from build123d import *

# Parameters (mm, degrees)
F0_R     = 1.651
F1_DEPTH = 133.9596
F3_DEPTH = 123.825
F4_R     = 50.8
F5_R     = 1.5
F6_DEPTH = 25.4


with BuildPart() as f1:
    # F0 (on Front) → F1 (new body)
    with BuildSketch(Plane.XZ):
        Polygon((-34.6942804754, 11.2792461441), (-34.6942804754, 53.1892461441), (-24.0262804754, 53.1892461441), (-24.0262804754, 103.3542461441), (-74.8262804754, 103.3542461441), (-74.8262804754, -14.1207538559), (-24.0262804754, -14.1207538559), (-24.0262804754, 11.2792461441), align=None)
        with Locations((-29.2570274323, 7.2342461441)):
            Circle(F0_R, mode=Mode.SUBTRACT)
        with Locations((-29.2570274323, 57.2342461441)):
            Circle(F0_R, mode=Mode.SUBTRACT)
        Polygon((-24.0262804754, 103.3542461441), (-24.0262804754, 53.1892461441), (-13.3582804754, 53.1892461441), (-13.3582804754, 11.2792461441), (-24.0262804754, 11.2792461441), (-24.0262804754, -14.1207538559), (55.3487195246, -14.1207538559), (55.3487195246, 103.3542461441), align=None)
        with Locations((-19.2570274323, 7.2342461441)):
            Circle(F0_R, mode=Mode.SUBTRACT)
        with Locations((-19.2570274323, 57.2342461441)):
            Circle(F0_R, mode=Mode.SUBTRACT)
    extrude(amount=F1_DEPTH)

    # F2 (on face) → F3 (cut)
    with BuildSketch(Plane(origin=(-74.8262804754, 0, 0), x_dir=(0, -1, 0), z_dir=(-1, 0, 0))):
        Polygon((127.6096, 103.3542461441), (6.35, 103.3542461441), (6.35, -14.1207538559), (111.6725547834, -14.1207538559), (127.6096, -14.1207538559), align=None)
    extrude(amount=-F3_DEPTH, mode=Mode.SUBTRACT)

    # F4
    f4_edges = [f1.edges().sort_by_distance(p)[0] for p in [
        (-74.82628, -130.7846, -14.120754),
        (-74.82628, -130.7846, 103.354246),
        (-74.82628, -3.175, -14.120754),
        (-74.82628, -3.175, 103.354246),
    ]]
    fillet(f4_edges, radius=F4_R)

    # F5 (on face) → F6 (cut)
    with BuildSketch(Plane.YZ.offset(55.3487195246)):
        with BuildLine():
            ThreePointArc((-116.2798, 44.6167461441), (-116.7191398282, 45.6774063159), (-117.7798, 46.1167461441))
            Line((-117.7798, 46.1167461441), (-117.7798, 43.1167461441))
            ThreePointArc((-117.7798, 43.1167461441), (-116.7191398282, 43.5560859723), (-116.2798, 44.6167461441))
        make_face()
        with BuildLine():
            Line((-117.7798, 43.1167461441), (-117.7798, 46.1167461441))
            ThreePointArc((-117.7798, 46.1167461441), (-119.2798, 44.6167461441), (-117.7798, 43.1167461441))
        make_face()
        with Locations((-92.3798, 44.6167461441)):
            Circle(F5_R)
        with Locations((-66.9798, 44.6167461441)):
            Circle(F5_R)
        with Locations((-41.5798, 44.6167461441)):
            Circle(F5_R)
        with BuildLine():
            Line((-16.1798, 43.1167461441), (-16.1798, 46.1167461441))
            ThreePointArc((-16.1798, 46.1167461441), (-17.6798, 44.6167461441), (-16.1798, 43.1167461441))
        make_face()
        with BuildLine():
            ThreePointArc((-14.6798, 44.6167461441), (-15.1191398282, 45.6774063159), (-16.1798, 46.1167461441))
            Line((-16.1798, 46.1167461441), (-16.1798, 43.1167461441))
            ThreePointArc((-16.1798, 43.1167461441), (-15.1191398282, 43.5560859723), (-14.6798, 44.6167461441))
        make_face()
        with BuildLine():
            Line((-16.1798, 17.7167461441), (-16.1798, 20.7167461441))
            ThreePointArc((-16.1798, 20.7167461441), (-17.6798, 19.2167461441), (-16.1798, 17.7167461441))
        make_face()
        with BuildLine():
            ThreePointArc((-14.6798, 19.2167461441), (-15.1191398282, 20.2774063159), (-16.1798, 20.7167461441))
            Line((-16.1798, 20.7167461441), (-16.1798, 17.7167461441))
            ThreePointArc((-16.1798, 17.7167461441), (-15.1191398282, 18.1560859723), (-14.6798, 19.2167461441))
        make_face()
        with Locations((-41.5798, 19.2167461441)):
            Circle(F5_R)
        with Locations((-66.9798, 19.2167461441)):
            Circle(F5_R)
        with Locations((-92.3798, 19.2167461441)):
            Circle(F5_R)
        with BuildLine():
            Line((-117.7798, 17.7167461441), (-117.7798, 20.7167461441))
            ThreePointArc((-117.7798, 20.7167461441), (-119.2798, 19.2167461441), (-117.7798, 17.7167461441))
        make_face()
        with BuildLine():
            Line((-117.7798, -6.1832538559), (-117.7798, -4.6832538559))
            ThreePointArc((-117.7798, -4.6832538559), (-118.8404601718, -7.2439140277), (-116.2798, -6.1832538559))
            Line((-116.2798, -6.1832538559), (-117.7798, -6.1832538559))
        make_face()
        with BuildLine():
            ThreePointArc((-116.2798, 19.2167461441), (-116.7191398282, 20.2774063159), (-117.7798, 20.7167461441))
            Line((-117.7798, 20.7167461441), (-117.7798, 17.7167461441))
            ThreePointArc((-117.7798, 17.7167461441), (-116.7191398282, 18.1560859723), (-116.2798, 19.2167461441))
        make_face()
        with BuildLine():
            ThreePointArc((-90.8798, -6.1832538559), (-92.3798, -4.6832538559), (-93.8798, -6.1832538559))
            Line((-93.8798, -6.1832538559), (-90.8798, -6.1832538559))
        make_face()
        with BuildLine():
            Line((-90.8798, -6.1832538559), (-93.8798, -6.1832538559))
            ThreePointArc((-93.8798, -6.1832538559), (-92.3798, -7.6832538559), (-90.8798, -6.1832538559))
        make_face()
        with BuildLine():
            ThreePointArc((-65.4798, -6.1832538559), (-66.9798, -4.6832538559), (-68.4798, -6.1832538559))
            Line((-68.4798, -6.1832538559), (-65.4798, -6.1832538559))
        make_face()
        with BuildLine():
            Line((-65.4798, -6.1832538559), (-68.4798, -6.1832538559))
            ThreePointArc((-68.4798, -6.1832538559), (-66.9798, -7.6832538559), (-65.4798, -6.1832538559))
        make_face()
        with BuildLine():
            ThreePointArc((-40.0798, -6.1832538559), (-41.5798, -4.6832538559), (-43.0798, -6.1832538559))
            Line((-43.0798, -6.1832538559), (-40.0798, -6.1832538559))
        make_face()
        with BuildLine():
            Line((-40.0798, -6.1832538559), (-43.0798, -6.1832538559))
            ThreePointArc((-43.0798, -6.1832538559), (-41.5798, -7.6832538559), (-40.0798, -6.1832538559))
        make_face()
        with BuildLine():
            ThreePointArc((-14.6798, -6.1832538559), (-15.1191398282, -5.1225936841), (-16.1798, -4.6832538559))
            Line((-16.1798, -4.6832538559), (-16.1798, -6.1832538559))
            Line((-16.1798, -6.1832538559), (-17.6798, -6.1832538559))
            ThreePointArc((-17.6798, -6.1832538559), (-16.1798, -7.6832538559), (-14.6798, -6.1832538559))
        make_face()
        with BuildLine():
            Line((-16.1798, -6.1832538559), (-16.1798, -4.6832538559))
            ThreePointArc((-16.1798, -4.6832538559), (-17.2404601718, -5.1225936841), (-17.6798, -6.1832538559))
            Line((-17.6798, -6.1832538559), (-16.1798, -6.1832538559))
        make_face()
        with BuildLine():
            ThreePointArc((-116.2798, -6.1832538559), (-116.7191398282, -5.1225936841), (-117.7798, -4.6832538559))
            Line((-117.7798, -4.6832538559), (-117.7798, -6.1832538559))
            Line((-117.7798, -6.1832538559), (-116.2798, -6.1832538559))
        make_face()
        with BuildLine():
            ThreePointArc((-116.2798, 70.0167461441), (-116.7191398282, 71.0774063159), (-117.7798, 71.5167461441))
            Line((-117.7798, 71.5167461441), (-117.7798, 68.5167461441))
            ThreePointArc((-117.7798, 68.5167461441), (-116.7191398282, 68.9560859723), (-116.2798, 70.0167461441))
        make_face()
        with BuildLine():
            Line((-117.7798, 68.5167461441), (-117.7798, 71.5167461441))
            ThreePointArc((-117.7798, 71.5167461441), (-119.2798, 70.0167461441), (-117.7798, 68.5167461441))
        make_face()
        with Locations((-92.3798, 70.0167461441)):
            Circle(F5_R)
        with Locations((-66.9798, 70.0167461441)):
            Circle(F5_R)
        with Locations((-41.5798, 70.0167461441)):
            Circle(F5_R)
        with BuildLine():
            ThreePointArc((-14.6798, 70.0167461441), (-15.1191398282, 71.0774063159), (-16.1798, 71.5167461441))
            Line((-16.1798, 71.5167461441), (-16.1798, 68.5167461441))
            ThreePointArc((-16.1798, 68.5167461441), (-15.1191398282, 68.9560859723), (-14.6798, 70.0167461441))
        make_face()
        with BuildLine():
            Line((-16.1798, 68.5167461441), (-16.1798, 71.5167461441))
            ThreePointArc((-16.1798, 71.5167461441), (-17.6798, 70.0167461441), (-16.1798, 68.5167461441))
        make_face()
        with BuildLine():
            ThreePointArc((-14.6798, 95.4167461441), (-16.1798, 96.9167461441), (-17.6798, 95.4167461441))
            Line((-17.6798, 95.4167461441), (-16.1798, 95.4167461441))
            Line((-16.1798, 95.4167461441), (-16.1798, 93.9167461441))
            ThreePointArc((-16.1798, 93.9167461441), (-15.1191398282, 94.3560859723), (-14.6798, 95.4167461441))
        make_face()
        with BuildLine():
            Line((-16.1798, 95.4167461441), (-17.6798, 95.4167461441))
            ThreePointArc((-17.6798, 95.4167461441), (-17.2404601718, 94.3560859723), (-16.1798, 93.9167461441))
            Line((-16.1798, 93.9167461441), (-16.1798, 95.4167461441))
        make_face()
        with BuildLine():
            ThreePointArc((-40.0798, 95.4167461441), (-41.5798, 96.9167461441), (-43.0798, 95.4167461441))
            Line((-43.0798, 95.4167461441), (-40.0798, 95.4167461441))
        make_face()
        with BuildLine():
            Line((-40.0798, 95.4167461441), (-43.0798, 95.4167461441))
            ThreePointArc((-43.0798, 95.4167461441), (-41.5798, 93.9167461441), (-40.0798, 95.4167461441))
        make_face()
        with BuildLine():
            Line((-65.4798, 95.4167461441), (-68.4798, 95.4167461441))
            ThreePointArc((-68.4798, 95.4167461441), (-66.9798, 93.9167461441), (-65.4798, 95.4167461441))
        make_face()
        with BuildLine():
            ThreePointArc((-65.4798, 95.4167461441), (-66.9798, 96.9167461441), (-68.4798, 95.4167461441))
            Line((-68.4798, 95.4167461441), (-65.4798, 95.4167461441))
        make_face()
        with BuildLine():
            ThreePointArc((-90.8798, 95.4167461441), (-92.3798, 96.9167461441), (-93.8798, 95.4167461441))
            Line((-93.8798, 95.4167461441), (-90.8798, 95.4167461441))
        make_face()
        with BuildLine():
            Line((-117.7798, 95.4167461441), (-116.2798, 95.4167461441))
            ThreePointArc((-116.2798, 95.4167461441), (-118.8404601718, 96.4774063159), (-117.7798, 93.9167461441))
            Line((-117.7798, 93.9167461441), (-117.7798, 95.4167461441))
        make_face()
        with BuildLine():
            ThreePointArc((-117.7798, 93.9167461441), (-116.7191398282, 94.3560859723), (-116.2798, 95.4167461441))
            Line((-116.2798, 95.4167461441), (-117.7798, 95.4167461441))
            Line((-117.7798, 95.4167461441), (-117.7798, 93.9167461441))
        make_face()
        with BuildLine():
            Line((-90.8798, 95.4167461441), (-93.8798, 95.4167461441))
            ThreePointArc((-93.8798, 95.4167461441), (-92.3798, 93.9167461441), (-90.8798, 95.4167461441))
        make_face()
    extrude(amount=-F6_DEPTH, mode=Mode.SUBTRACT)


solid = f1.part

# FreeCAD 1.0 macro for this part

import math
import FreeCAD as App
import Part
import Sketcher
Q = App.Units.Quantity


def edges_at(feature, points):
    """Names of the edges that pass closest to the given points."""
    edges = feature.Shape.Edges
    near = lambda p: min(range(len(edges)), key=lambda i: edges[i].distToShape(Part.Vertex(*p))[0])
    return sorted({f"Edge{near(p) + 1}" for p in points})


def add_polygon(sketch, points):
    """Adds a closed chain of lines whose ends are joined by coincident constraints."""
    first, n = sketch.GeometryCount, len(points)
    for a, b in zip(points, points[1:] + points[:1]):
        sketch.addGeometry(Part.LineSegment(App.Vector(*a, 0), App.Vector(*b, 0)), False)
    for i in range(n):
        sketch.addConstraint(Sketcher.Constraint("Coincident", first + i, 2, first + (i + 1) % n, 1))

doc = App.newDocument("Part")
body = doc.addObject("PartDesign::Body", "Body")

# Sketch on XZ plane
sketch1 = body.newObject("Sketcher::SketchObject", "Sketch")
sketch1.AttachmentSupport = (doc.getObject("XZ_Plane"), [""])
sketch1.MapMode = "FlatFace"
add_polygon(sketch1, [(-74.8, -14.1), (55.3, -14.1), (55.3, 103.4), (-74.8, 103.4)])  # lines 0-3
sketch1.addGeometry(Part.Circle(App.Vector(-29.3, 7.2, 0), App.Vector(0, 0, 1), 1.7), False)  # 4
sketch1.addGeometry(Part.Circle(App.Vector(-19.3, 7.2, 0), App.Vector(0, 0, 1), 1.7), False)  # 5
sketch1.addGeometry(Part.Circle(App.Vector(-29.3, 57.2, 0), App.Vector(0, 0, 1), 1.7), False)  # 6
add_polygon(sketch1, [(-34.7, 11.3), (-34.7, 53.2), (-13.4, 53.2), (-13.4, 11.3)])  # lines 7-10
sketch1.addGeometry(Part.Circle(App.Vector(-19.3, 57.2, 0), App.Vector(0, 0, 1), 1.7), False)  # 11
sketch1.addConstraint(Sketcher.Constraint("Horizontal", 0))
sketch1.addConstraint(Sketcher.Constraint("Vertical", 1))
sketch1.addConstraint(Sketcher.Constraint("Horizontal", 2))
sketch1.addConstraint(Sketcher.Constraint("Vertical", 3))
sketch1.addConstraint(Sketcher.Constraint("Vertical", 7))
sketch1.addConstraint(Sketcher.Constraint("Horizontal", 8))
sketch1.addConstraint(Sketcher.Constraint("Vertical", 9))
sketch1.addConstraint(Sketcher.Constraint("Horizontal", 10))
sketch1.addConstraint(Sketcher.Constraint("Equal", 4, 5))
sketch1.addConstraint(Sketcher.Constraint("Equal", 5, 6))
sketch1.addConstraint(Sketcher.Constraint("Equal", 6, 11))
sketch1.addConstraint(Sketcher.Constraint("Horizontal", 4, 3, 5, 3))
sketch1.addConstraint(Sketcher.Constraint("Horizontal", 6, 3, 11, 3))
sketch1.addConstraint(Sketcher.Constraint("Vertical", 4, 3, 6, 3))
sketch1.addConstraint(Sketcher.Constraint("Vertical", 5, 3, 11, 3))
sketch1.addConstraint(Sketcher.Constraint("Diameter", 4, Q("0.13 in")))
sketch1.addConstraint(Sketcher.Constraint("DistanceX", 8, 1, 8, 2, Q("0.84 in")))
sketch1.addConstraint(Sketcher.Constraint("DistanceY", 7, 1, 7, 2, Q("1.65 in")))
sketch1.addConstraint(Sketcher.Constraint("DistanceX", 0, 1, 0, 2, Q("5.125 in")))
sketch1.addConstraint(Sketcher.Constraint("DistanceY", 1, 1, 1, 2, Q("4.625 in")))
sketch1.addConstraint(Sketcher.Constraint("DistanceX", 2, 2, 7, 2, Q("1.58 in")))
sketch1.addConstraint(Sketcher.Constraint("DistanceY", 7, 2, 2, 2, Q("1.975 in")))
sketch1.addConstraint(Sketcher.Constraint("DistanceX", 4, 3, 5, 3, 10.0))
sketch1.addConstraint(Sketcher.Constraint("DistanceY", 4, 3, 6, 3, 50.0))
sketch1.addConstraint(Sketcher.Constraint("DistanceY", 0, 2, 5, 3, 21.355))
sketch1.addConstraint(Sketcher.Constraint("DistanceX", -1, 1, 0, 2, 55.34872))
sketch1.addConstraint(Sketcher.Constraint("DistanceX", 4, 3, -1, 1, 29.257027))
sketch1.addConstraint(Sketcher.Constraint("DistanceY", -1, 1, 4, 3, 7.234246))
pad1 = body.newObject("PartDesign::Pad", "Pad")
pad1.Profile = sketch1
pad1.Length = Q("5.274 in")

# Sketch on YZ plane
sketch2 = body.newObject("Sketcher::SketchObject", "Sketch001")
sketch2.AttachmentSupport = (doc.getObject("YZ_Plane"), [""])
sketch2.MapMode = "FlatFace"
sketch2.AttachmentOffset = App.Placement(App.Vector(0, 0, -74.82628), App.Rotation())
add_polygon(sketch2, [(-128, 103), (-6, 103), (-6, -14), (-128, -14)])  # lines 0-3
sketch2.addConstraint(Sketcher.Constraint("Horizontal", 0))
sketch2.addConstraint(Sketcher.Constraint("Vertical", 1))
sketch2.addConstraint(Sketcher.Constraint("Horizontal", 2))
sketch2.addConstraint(Sketcher.Constraint("Vertical", 3))
sketch2.addConstraint(Sketcher.Constraint("DistanceX", 0, 1, 0, 2, Q("4.774 in")))
sketch2.addConstraint(Sketcher.Constraint("DistanceY", 1, 2, 1, 1, Q("4.625 in")))
sketch2.addConstraint(Sketcher.Constraint("DistanceX", 0, 2, -1, 1, Q("0.25 in")))
sketch2.addConstraint(Sketcher.Constraint("DistanceY", -1, 1, 0, 2, 103.354246))
pocket1 = body.newObject("PartDesign::Pocket", "Pocket")
pocket1.Profile = sketch2
pocket1.Length = Q("4.875 in")
pocket1.Reversed = True
doc.recompute()

fillet = body.newObject("PartDesign::Fillet", "Fillet")
fillet.Base = (pocket1, edges_at(pocket1, [
    (-74.826, -130.785, -14.121),
    (-74.826, -130.785, 103.354),
    (-74.826, -3.175, -14.121),
    (-74.826, -3.175, 103.354),
]))
fillet.Radius = Q("2 in")

# Sketch on YZ plane
sketch3 = body.newObject("Sketcher::SketchObject", "Sketch002")
sketch3.AttachmentSupport = (doc.getObject("YZ_Plane"), [""])
sketch3.MapMode = "FlatFace"
sketch3.AttachmentOffset = App.Placement(App.Vector(0, 0, 55.34872), App.Rotation())
sketch3.addGeometry(Part.ArcOfCircle(Part.Circle(App.Vector(-117.8, 44.6, 0), App.Vector(0, 0, 1), 1.5), math.radians(0), math.radians(90)), False)
sketch3.addGeometry(Part.ArcOfCircle(Part.Circle(App.Vector(-117.8, 44.6, 0), App.Vector(0, 0, 1), 1.5), math.radians(90), math.radians(270)), False)
sketch3.addGeometry(Part.ArcOfCircle(Part.Circle(App.Vector(-117.8, 44.6, 0), App.Vector(0, 0, 1), 1.5), math.radians(-90), math.radians(0)), False)
sketch3.addGeometry(Part.Circle(App.Vector(-92.4, 44.6, 0), App.Vector(0, 0, 1), 1.5), False)
sketch3.addGeometry(Part.Circle(App.Vector(-67, 44.6, 0), App.Vector(0, 0, 1), 1.5), False)
sketch3.addGeometry(Part.Circle(App.Vector(-41.6, 44.6, 0), App.Vector(0, 0, 1), 1.5), False)
sketch3.addGeometry(Part.ArcOfCircle(Part.Circle(App.Vector(-16.2, 44.6, 0), App.Vector(0, 0, 1), 1.5), math.radians(90), math.radians(270)), False)
sketch3.addGeometry(Part.ArcOfCircle(Part.Circle(App.Vector(-16.2, 44.6, 0), App.Vector(0, 0, 1), 1.5), math.radians(-90), math.radians(0)), False)
sketch3.addGeometry(Part.ArcOfCircle(Part.Circle(App.Vector(-16.2, 44.6, 0), App.Vector(0, 0, 1), 1.5), math.radians(0), math.radians(90)), False)
sketch3.addGeometry(Part.ArcOfCircle(Part.Circle(App.Vector(-16.2, 19.2, 0), App.Vector(0, 0, 1), 1.5), math.radians(90), math.radians(270)), False)
sketch3.addGeometry(Part.ArcOfCircle(Part.Circle(App.Vector(-16.2, 19.2, 0), App.Vector(0, 0, 1), 1.5), math.radians(-90), math.radians(0)), False)
sketch3.addGeometry(Part.ArcOfCircle(Part.Circle(App.Vector(-16.2, 19.2, 0), App.Vector(0, 0, 1), 1.5), math.radians(0), math.radians(90)), False)
sketch3.addGeometry(Part.Circle(App.Vector(-41.6, 19.2, 0), App.Vector(0, 0, 1), 1.5), False)
sketch3.addGeometry(Part.Circle(App.Vector(-67, 19.2, 0), App.Vector(0, 0, 1), 1.5), False)
sketch3.addGeometry(Part.Circle(App.Vector(-92.4, 19.2, 0), App.Vector(0, 0, 1), 1.5), False)
sketch3.addGeometry(Part.ArcOfCircle(Part.Circle(App.Vector(-117.8, 19.2, 0), App.Vector(0, 0, 1), 1.5), math.radians(90), math.radians(270)), False)
sketch3.addGeometry(Part.ArcOfCircle(Part.Circle(App.Vector(-117.8, 19.2, 0), App.Vector(0, 0, 1), 1.5), math.radians(-90), math.radians(0)), False)
sketch3.addGeometry(Part.ArcOfCircle(Part.Circle(App.Vector(-117.8, 19.2, 0), App.Vector(0, 0, 1), 1.5), math.radians(0), math.radians(90)), False)
sketch3.addGeometry(Part.ArcOfCircle(Part.Circle(App.Vector(-117.8, -6.2, 0), App.Vector(0, 0, 1), 1.5), math.radians(90), math.radians(360)), False)
sketch3.addGeometry(Part.ArcOfCircle(Part.Circle(App.Vector(-117.8, -6.2, 0), App.Vector(0, 0, 1), 1.5), math.radians(0), math.radians(90)), False)
sketch3.addGeometry(Part.Circle(App.Vector(-92.4, -6.2, 0), App.Vector(0, 0, 1), 1.5), False)
sketch3.addGeometry(Part.Circle(App.Vector(-67, -6.2, 0), App.Vector(0, 0, 1), 1.5), False)
sketch3.addGeometry(Part.Circle(App.Vector(-41.6, -6.2, 0), App.Vector(0, 0, 1), 1.5), False)
sketch3.addGeometry(Part.ArcOfCircle(Part.Circle(App.Vector(-16.2, -6.2, 0), App.Vector(0, 0, 1), 1.5), math.radians(0), math.radians(90)), False)
sketch3.addGeometry(Part.ArcOfCircle(Part.Circle(App.Vector(-16.2, -6.2, 0), App.Vector(0, 0, 1), 1.5), math.radians(90), math.radians(180)), False)
sketch3.addGeometry(Part.ArcOfCircle(Part.Circle(App.Vector(-16.2, -6.2, 0), App.Vector(0, 0, 1), 1.5), math.radians(180), math.radians(360)), False)
sketch3.addGeometry(Part.ArcOfCircle(Part.Circle(App.Vector(-117.8, 70, 0), App.Vector(0, 0, 1), 1.5), math.radians(0), math.radians(90)), False)
sketch3.addGeometry(Part.ArcOfCircle(Part.Circle(App.Vector(-117.8, 70, 0), App.Vector(0, 0, 1), 1.5), math.radians(90), math.radians(270)), False)
sketch3.addGeometry(Part.ArcOfCircle(Part.Circle(App.Vector(-117.8, 70, 0), App.Vector(0, 0, 1), 1.5), math.radians(-90), math.radians(0)), False)
sketch3.addGeometry(Part.Circle(App.Vector(-92.4, 70, 0), App.Vector(0, 0, 1), 1.5), False)
sketch3.addGeometry(Part.Circle(App.Vector(-67, 70, 0), App.Vector(0, 0, 1), 1.5), False)
sketch3.addGeometry(Part.Circle(App.Vector(-41.6, 70, 0), App.Vector(0, 0, 1), 1.5), False)
sketch3.addGeometry(Part.ArcOfCircle(Part.Circle(App.Vector(-16.2, 70, 0), App.Vector(0, 0, 1), 1.5), math.radians(0), math.radians(90)), False)
sketch3.addGeometry(Part.ArcOfCircle(Part.Circle(App.Vector(-16.2, 70, 0), App.Vector(0, 0, 1), 1.5), math.radians(90), math.radians(270)), False)
sketch3.addGeometry(Part.ArcOfCircle(Part.Circle(App.Vector(-16.2, 70, 0), App.Vector(0, 0, 1), 1.5), math.radians(-90), math.radians(0)), False)
sketch3.addGeometry(Part.ArcOfCircle(Part.Circle(App.Vector(-16.2, 95.4, 0), App.Vector(0, 0, 1), 1.5), math.radians(0), math.radians(180)), False)
sketch3.addGeometry(Part.ArcOfCircle(Part.Circle(App.Vector(-16.2, 95.4, 0), App.Vector(0, 0, 1), 1.5), math.radians(180), math.radians(270)), False)
sketch3.addGeometry(Part.ArcOfCircle(Part.Circle(App.Vector(-16.2, 95.4, 0), App.Vector(0, 0, 1), 1.5), math.radians(-90), math.radians(0)), False)
sketch3.addGeometry(Part.Circle(App.Vector(-41.6, 95.4, 0), App.Vector(0, 0, 1), 1.5), False)
sketch3.addGeometry(Part.Circle(App.Vector(-67, 95.4, 0), App.Vector(0, 0, 1), 1.5), False)
sketch3.addGeometry(Part.Circle(App.Vector(-92.4, 95.4, 0), App.Vector(0, 0, 1), 1.5), False)
sketch3.addGeometry(Part.ArcOfCircle(Part.Circle(App.Vector(-117.8, 95.4, 0), App.Vector(0, 0, 1), 1.5), math.radians(0), math.radians(270)), False)
sketch3.addGeometry(Part.ArcOfCircle(Part.Circle(App.Vector(-117.8, 95.4, 0), App.Vector(0, 0, 1), 1.5), math.radians(-90), math.radians(0)), False)
sketch3.addConstraint(Sketcher.Constraint("Tangent", 0, 2, 1, 1))
sketch3.addConstraint(Sketcher.Constraint("Tangent", 1, 2, 2, 1))
sketch3.addConstraint(Sketcher.Constraint("Tangent", 2, 2, 0, 1))
sketch3.addConstraint(Sketcher.Constraint("Tangent", 6, 2, 7, 1))
sketch3.addConstraint(Sketcher.Constraint("Tangent", 7, 2, 8, 1))
sketch3.addConstraint(Sketcher.Constraint("Tangent", 8, 2, 6, 1))
sketch3.addConstraint(Sketcher.Constraint("Tangent", 9, 2, 10, 1))
sketch3.addConstraint(Sketcher.Constraint("Tangent", 10, 2, 11, 1))
sketch3.addConstraint(Sketcher.Constraint("Tangent", 11, 2, 9, 1))
sketch3.addConstraint(Sketcher.Constraint("Tangent", 15, 2, 16, 1))
sketch3.addConstraint(Sketcher.Constraint("Tangent", 16, 2, 17, 1))
sketch3.addConstraint(Sketcher.Constraint("Tangent", 17, 2, 15, 1))
sketch3.addConstraint(Sketcher.Constraint("Tangent", 18, 1, 19, 2))
sketch3.addConstraint(Sketcher.Constraint("Coincident", 19, 1, 18, 2))
sketch3.addConstraint(Sketcher.Constraint("Tangent", 23, 2, 24, 1))
sketch3.addConstraint(Sketcher.Constraint("Tangent", 24, 2, 25, 1))
sketch3.addConstraint(Sketcher.Constraint("Tangent", 25, 2, 23, 1))
sketch3.addConstraint(Sketcher.Constraint("Tangent", 26, 2, 27, 1))
sketch3.addConstraint(Sketcher.Constraint("Tangent", 27, 2, 28, 1))
sketch3.addConstraint(Sketcher.Constraint("Tangent", 28, 2, 26, 1))
sketch3.addConstraint(Sketcher.Constraint("Tangent", 32, 2, 33, 1))
sketch3.addConstraint(Sketcher.Constraint("Tangent", 33, 2, 34, 1))
sketch3.addConstraint(Sketcher.Constraint("Tangent", 34, 2, 32, 1))
sketch3.addConstraint(Sketcher.Constraint("Tangent", 35, 2, 36, 1))
sketch3.addConstraint(Sketcher.Constraint("Tangent", 36, 2, 37, 1))
sketch3.addConstraint(Sketcher.Constraint("Tangent", 37, 2, 35, 1))
sketch3.addConstraint(Sketcher.Constraint("Tangent", 41, 1, 42, 2))
sketch3.addConstraint(Sketcher.Constraint("Coincident", 42, 1, 41, 2))
sketch3.addConstraint(Sketcher.Constraint("Equal", 2, 3))
sketch3.addConstraint(Sketcher.Constraint("Equal", 3, 4))
sketch3.addConstraint(Sketcher.Constraint("Equal", 4, 5))
sketch3.addConstraint(Sketcher.Constraint("Equal", 5, 6))
sketch3.addConstraint(Sketcher.Constraint("Equal", 8, 9))
sketch3.addConstraint(Sketcher.Constraint("Equal", 11, 12))
sketch3.addConstraint(Sketcher.Constraint("Equal", 12, 13))
sketch3.addConstraint(Sketcher.Constraint("Equal", 13, 14))
sketch3.addConstraint(Sketcher.Constraint("Equal", 14, 15))
sketch3.addConstraint(Sketcher.Constraint("Equal", 17, 18))
sketch3.addConstraint(Sketcher.Constraint("Equal", 19, 20))
sketch3.addConstraint(Sketcher.Constraint("Equal", 20, 21))
sketch3.addConstraint(Sketcher.Constraint("Equal", 21, 22))
sketch3.addConstraint(Sketcher.Constraint("Equal", 22, 23))
sketch3.addConstraint(Sketcher.Constraint("Equal", 25, 26))
sketch3.addConstraint(Sketcher.Constraint("Equal", 28, 29))
sketch3.addConstraint(Sketcher.Constraint("Equal", 29, 30))
sketch3.addConstraint(Sketcher.Constraint("Equal", 30, 31))
sketch3.addConstraint(Sketcher.Constraint("Equal", 31, 32))
sketch3.addConstraint(Sketcher.Constraint("Equal", 34, 35))
sketch3.addConstraint(Sketcher.Constraint("Equal", 37, 38))
sketch3.addConstraint(Sketcher.Constraint("Equal", 38, 39))
sketch3.addConstraint(Sketcher.Constraint("Equal", 39, 40))
sketch3.addConstraint(Sketcher.Constraint("Equal", 40, 41))
sketch3.addConstraint(Sketcher.Constraint("Horizontal", 2, 3, 3, 3))
sketch3.addConstraint(Sketcher.Constraint("Horizontal", 3, 3, 4, 3))
sketch3.addConstraint(Sketcher.Constraint("Horizontal", 4, 3, 5, 3))
sketch3.addConstraint(Sketcher.Constraint("Horizontal", 5, 3, 6, 3))
sketch3.addConstraint(Sketcher.Constraint("Horizontal", 11, 3, 12, 3))
sketch3.addConstraint(Sketcher.Constraint("Horizontal", 12, 3, 13, 3))
sketch3.addConstraint(Sketcher.Constraint("Horizontal", 13, 3, 14, 3))
sketch3.addConstraint(Sketcher.Constraint("Horizontal", 14, 3, 15, 3))
sketch3.addConstraint(Sketcher.Constraint("Horizontal", 19, 3, 20, 3))
sketch3.addConstraint(Sketcher.Constraint("Horizontal", 20, 3, 21, 3))
sketch3.addConstraint(Sketcher.Constraint("Horizontal", 21, 3, 22, 3))
sketch3.addConstraint(Sketcher.Constraint("Horizontal", 22, 3, 23, 3))
sketch3.addConstraint(Sketcher.Constraint("Horizontal", 28, 3, 29, 3))
sketch3.addConstraint(Sketcher.Constraint("Horizontal", 29, 3, 30, 3))
sketch3.addConstraint(Sketcher.Constraint("Horizontal", 30, 3, 31, 3))
sketch3.addConstraint(Sketcher.Constraint("Horizontal", 31, 3, 32, 3))
sketch3.addConstraint(Sketcher.Constraint("Horizontal", 37, 3, 38, 3))
sketch3.addConstraint(Sketcher.Constraint("Horizontal", 38, 3, 39, 3))
sketch3.addConstraint(Sketcher.Constraint("Horizontal", 39, 3, 40, 3))
sketch3.addConstraint(Sketcher.Constraint("Horizontal", 40, 3, 41, 3))
sketch3.addConstraint(Sketcher.Constraint("Horizontal", 8, 3, 2, 2))
sketch3.addConstraint(Sketcher.Constraint("Horizontal", 2, 2, 7, 2))
sketch3.addConstraint(Sketcher.Constraint("Horizontal", 17, 3, 10, 2))
sketch3.addConstraint(Sketcher.Constraint("Horizontal", 10, 2, 16, 2))
sketch3.addConstraint(Sketcher.Constraint("Horizontal", 25, 3, 19, 1))
sketch3.addConstraint(Sketcher.Constraint("Horizontal", 19, 1, 24, 2))
sketch3.addConstraint(Sketcher.Constraint("Horizontal", 24, 2, 25, 2))
sketch3.addConstraint(Sketcher.Constraint("Horizontal", 34, 3, 28, 2))
sketch3.addConstraint(Sketcher.Constraint("Horizontal", 28, 2, 34, 2))
sketch3.addConstraint(Sketcher.Constraint("Horizontal", 42, 3, 35, 2))
sketch3.addConstraint(Sketcher.Constraint("Horizontal", 35, 2, 37, 2))
sketch3.addConstraint(Sketcher.Constraint("Horizontal", 37, 2, 41, 1))
sketch3.addConstraint(Sketcher.Constraint("Vertical", 8, 3, 9, 3))
sketch3.addConstraint(Sketcher.Constraint("Vertical", 5, 3, 12, 3))
sketch3.addConstraint(Sketcher.Constraint("Vertical", 4, 3, 13, 3))
sketch3.addConstraint(Sketcher.Constraint("Vertical", 3, 3, 14, 3))
sketch3.addConstraint(Sketcher.Constraint("Vertical", 2, 3, 15, 3))
sketch3.addConstraint(Sketcher.Constraint("Vertical", 17, 3, 18, 3))
sketch3.addConstraint(Sketcher.Constraint("Vertical", 14, 3, 20, 3))
sketch3.addConstraint(Sketcher.Constraint("Vertical", 13, 3, 21, 3))
sketch3.addConstraint(Sketcher.Constraint("Vertical", 12, 3, 22, 3))
sketch3.addConstraint(Sketcher.Constraint("Vertical", 11, 3, 23, 3))
sketch3.addConstraint(Sketcher.Constraint("Vertical", 19, 3, 26, 3))
sketch3.addConstraint(Sketcher.Constraint("Vertical", 20, 3, 29, 3))
sketch3.addConstraint(Sketcher.Constraint("Vertical", 21, 3, 30, 3))
sketch3.addConstraint(Sketcher.Constraint("Vertical", 22, 3, 31, 3))
sketch3.addConstraint(Sketcher.Constraint("Vertical", 25, 3, 32, 3))
sketch3.addConstraint(Sketcher.Constraint("Vertical", 34, 3, 35, 3))
sketch3.addConstraint(Sketcher.Constraint("Vertical", 31, 3, 38, 3))
sketch3.addConstraint(Sketcher.Constraint("Vertical", 30, 3, 39, 3))
sketch3.addConstraint(Sketcher.Constraint("Vertical", 29, 3, 40, 3))
sketch3.addConstraint(Sketcher.Constraint("Vertical", 28, 3, 41, 3))
sketch3.addConstraint(Sketcher.Constraint("Vertical", 42, 3, 0, 2))
sketch3.addConstraint(Sketcher.Constraint("Vertical", 0, 2, 1, 2))
sketch3.addConstraint(Sketcher.Constraint("Vertical", 37, 3, 6, 2))
sketch3.addConstraint(Sketcher.Constraint("Vertical", 6, 2, 8, 2))
sketch3.addConstraint(Sketcher.Constraint("Vertical", 8, 2, 9, 2))
sketch3.addConstraint(Sketcher.Constraint("Vertical", 9, 2, 11, 2))
sketch3.addConstraint(Sketcher.Constraint("Vertical", 1, 2, 15, 2))
sketch3.addConstraint(Sketcher.Constraint("Vertical", 15, 2, 17, 2))
sketch3.addConstraint(Sketcher.Constraint("Vertical", 17, 2, 18, 1))
sketch3.addConstraint(Sketcher.Constraint("Vertical", 11, 2, 23, 2))
sketch3.addConstraint(Sketcher.Constraint("Vertical", 18, 1, 26, 2))
sketch3.addConstraint(Sketcher.Constraint("Vertical", 26, 2, 27, 2))
sketch3.addConstraint(Sketcher.Constraint("Vertical", 23, 2, 32, 2))
sketch3.addConstraint(Sketcher.Constraint("Vertical", 32, 2, 33, 2))
sketch3.addConstraint(Sketcher.Constraint("Vertical", 33, 2, 36, 2))
sketch3.addConstraint(Sketcher.Constraint("Vertical", 27, 2, 42, 1))
sketch3.addConstraint(Sketcher.Constraint("Diameter", 3, 3.0))
sketch3.addConstraint(Sketcher.Constraint("DistanceX", 0, 3, -1, 1, Q("4.637 in")))
sketch3.addConstraint(Sketcher.Constraint("DistanceX", 3, 3, -1, 1, Q("3.637 in")))
sketch3.addConstraint(Sketcher.Constraint("DistanceX", 4, 3, -1, 1, Q("2.637 in")))
sketch3.addConstraint(Sketcher.Constraint("DistanceX", 5, 3, -1, 1, Q("1.637 in")))
sketch3.addConstraint(Sketcher.Constraint("DistanceX", 6, 3, -1, 1, Q("0.637 in")))
sketch3.addConstraint(Sketcher.Constraint("DistanceY", -1, 1, 0, 3, 44.616746))
sketch3.addConstraint(Sketcher.Constraint("DistanceY", -1, 1, 9, 3, 19.216746))
sketch3.addConstraint(Sketcher.Constraint("DistanceY", 18, 3, -1, 1, 6.183254))
sketch3.addConstraint(Sketcher.Constraint("DistanceY", -1, 1, 26, 3, 70.016746))
sketch3.addConstraint(Sketcher.Constraint("DistanceY", -1, 1, 35, 3, 95.416746))
pocket2 = body.newObject("PartDesign::Pocket", "Pocket001")
pocket2.Profile = sketch3
pocket2.Length = Q("1 in")

doc.recompute()
